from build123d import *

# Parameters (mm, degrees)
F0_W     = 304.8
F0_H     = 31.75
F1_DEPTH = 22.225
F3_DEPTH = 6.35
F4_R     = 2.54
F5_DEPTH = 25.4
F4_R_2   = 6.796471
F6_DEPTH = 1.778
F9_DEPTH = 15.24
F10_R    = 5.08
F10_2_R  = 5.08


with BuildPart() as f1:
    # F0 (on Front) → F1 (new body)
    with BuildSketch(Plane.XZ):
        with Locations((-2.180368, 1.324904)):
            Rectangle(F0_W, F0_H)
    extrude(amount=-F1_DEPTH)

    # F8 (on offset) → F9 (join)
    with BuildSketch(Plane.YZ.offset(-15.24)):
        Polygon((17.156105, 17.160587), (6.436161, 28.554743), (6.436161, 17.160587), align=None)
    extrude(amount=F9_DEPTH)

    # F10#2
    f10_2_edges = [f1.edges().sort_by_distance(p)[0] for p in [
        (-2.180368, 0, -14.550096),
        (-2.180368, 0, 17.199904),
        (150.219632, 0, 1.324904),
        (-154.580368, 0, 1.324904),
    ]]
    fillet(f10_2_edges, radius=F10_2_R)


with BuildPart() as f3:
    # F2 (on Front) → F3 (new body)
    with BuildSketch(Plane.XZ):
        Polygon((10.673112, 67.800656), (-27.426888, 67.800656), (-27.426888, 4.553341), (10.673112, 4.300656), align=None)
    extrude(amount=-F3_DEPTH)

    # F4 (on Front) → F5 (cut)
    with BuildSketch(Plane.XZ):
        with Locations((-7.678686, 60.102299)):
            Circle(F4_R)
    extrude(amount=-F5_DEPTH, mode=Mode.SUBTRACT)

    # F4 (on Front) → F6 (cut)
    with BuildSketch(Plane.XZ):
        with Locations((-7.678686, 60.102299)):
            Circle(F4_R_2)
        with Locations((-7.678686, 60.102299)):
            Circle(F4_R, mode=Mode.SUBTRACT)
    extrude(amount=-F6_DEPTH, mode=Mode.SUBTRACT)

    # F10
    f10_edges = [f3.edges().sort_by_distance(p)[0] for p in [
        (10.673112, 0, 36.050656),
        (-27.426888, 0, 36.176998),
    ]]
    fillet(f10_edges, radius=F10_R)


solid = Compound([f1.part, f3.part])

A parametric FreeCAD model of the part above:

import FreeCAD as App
import Part
import Sketcher

V = App.Vector
Q = App.Units.Quantity


def edges_at(feature, points):
    """Names of the edges that pass closest to the given points."""
    edges = feature.Shape.Edges
    near = lambda p: min(range(len(edges)), key=lambda i: edges[i].distToShape(Part.Vertex(*p))[0])
    return sorted({f"Edge{near(p) + 1}" for p in points})


def add_polygon(sketch, points):
    """Adds a closed chain of lines whose ends are joined by coincident constraints."""
    first, n = sketch.GeometryCount, len(points)
    for a, b in zip(points, points[1:] + points[:1]):
        sketch.addGeometry(Part.LineSegment(App.Vector(*a, 0), App.Vector(*b, 0)), False)
    for i in range(n):
        sketch.addConstraint(Sketcher.Constraint("Coincident", first + i, 2, first + (i + 1) % n, 1))

doc = App.newDocument("Part")
body = doc.addObject("PartDesign::Body", "Body")

# Sketch on XZ plane
sketch1 = body.newObject("Sketcher::SketchObject", "Sketch")
sketch1.AttachmentSupport = (doc.getObject("XZ_Plane"), [""])
sketch1.MapMode = "FlatFace"
add_polygon(sketch1, [(-155, 17), (-155, -15), (150, -15), (150, 17)])  # lines 0-3
sketch1.addConstraint(Sketcher.Constraint("Vertical", 0))
sketch1.addConstraint(Sketcher.Constraint("Horizontal", 1))
sketch1.addConstraint(Sketcher.Constraint("Vertical", 2))
sketch1.addConstraint(Sketcher.Constraint("Horizontal", 3))
sketch1.addConstraint(Sketcher.Constraint("DistanceX", 1, 1, 1, 2, Q("12 in")))
sketch1.addConstraint(Sketcher.Constraint("DistanceY", 0, 2, 0, 1, Q("1.25 in")))
sketch1.addConstraint(Sketcher.Constraint("DistanceX", 0, 2, -1, 1, Q("154.580368 mm")))
sketch1.addConstraint(Sketcher.Constraint("DistanceY", 0, 2, -1, 1, Q("14.550096 mm")))
pad1 = body.newObject("PartDesign::Pad", "Pad")
pad1.Profile = sketch1
pad1.Length = Q("0.875 in")
pad1.Reversed = True

# Sketch on YZ plane
sketch2 = body.newObject("Sketcher::SketchObject", "Sketch001")
sketch2.AttachmentSupport = (doc.getObject("YZ_Plane"), [""])
sketch2.MapMode = "FlatFace"
sketch2.AttachmentOffset = App.Placement(V(0, 0, -0.6 * 25.4), App.Rotation())
add_polygon(sketch2, [(17, 17), (6, 29), (6, 17)])  # lines 0-2
sketch2.addConstraint(Sketcher.Constraint("Vertical", 1))
sketch2.addConstraint(Sketcher.Constraint("Horizontal", 2))
sketch2.addConstraint(Sketcher.Constraint("DistanceX", 2, 1, 2, 2, Q("10.719944 mm")))
sketch2.addConstraint(Sketcher.Constraint("DistanceY", 1, 2, 1, 1, Q("11.394156 mm")))
sketch2.addConstraint(Sketcher.Constraint("DistanceX", -1, 1, 0, 2, Q("6.436161 mm")))
sketch2.addConstraint(Sketcher.Constraint("DistanceY", -1, 1, 0, 2, Q("28.554743 mm")))
pad2 = body.newObject("PartDesign::Pad", "Pad001")
pad2.Profile = sketch2
pad2.Length = Q("0.6 in")
doc.recompute()

fillet = body.newObject("PartDesign::Fillet", "Fillet")
fillet.Base = (pad2, edges_at(pad2, [
    (-2.18, 0, -14.55),
    (-2.18, 0, 17.2),
    (150.22, 0, 1.325),
    (-154.58, 0, 1.325),
]))
fillet.Radius = Q("0.2 in")
body2 = doc.addObject("PartDesign::Body", "Body001")

# Sketch on XZ plane
sketch3 = body2.newObject("Sketcher::SketchObject", "Sketch002")
sketch3.AttachmentSupport = (doc.getObject("XZ_Plane001"), [""])
sketch3.MapMode = "FlatFace"
add_polygon(sketch3, [(11, 68), (-27, 68), (-27, 5), (11, 4)])  # lines 0-3
sketch3.addConstraint(Sketcher.Constraint("Horizontal", 0))
sketch3.addConstraint(Sketcher.Constraint("Vertical", 1))
sketch3.addConstraint(Sketcher.Constraint("Vertical", 3))
sketch3.addConstraint(Sketcher.Constraint("DistanceX", 0, 2, 0, 1, Q("1.5 in")))
sketch3.addConstraint(Sketcher.Constraint("DistanceY", 3, 1, 3, 2, Q("2.5 in")))
sketch3.addConstraint(Sketcher.Constraint("Angle", 2, Q("-0.379989 deg")))
sketch3.addConstraint(Sketcher.Constraint("DistanceX", 0, 2, -1, 1, Q("27.426888 mm")))
sketch3.addConstraint(Sketcher.Constraint("DistanceY", -1, 1, 1, 2, Q("4.553341 mm")))
pad3 = body2.newObject("PartDesign::Pad", "Pad002")
pad3.Profile = sketch3
pad3.Length = Q("0.25 in")
pad3.Reversed = True

# Sketch on XZ plane
sketch4 = body2.newObject("Sketcher::SketchObject", "Sketch003")
sketch4.AttachmentSupport = (doc.getObject("XZ_Plane001"), [""])
sketch4.MapMode = "FlatFace"
sketch4.addGeometry(Part.Circle(V(-7.7, 60.1, 0), V(0, 0, 1), 2.5), False)
sketch4.addConstraint(Sketcher.Constraint("Diameter", 0, Q("0.2 in")))
sketch4.addConstraint(Sketcher.Constraint("DistanceY", -1, 1, 0, 3, Q("60.102299 mm")))
sketch4.addConstraint(Sketcher.Constraint("DistanceX", 0, 3, -1, 1, Q("7.678686 mm")))
pocket1 = body2.newObject("PartDesign::Pocket", "Pocket")
pocket1.Profile = sketch4
pocket1.Length = Q("1 in")

# Sketch on XZ plane
sketch5 = body2.newObject("Sketcher::SketchObject", "Sketch004")
sketch5.AttachmentSupport = (doc.getObject("XZ_Plane001"), [""])
sketch5.MapMode = "FlatFace"
sketch5.addGeometry(Part.Circle(V(-7.7, 60.1, 0), V(0, 0, 1), 6.8), False)
sketch5.addGeometry(Part.Circle(V(-7.7, 60.1, 0), V(0, 0, 1), 2.5), False)
sketch5.addConstraint(Sketcher.Constraint("Coincident", 1, 3, 0, 3))
sketch5.addConstraint(Sketcher.Constraint("Diameter", 1, Q("0.2 in")))
sketch5.addConstraint(Sketcher.Constraint("Diameter", 0, Q("13.592942 mm")))
sketch5.addConstraint(Sketcher.Constraint("DistanceY", -1, 1, 0, 3, Q("60.102299 mm")))
sketch5.addConstraint(Sketcher.Constraint("DistanceX", 0, 3, -1, 1, Q("7.678686 mm")))
pocket2 = body2.newObject("PartDesign::Pocket", "Pocket001")
pocket2.Profile = sketch5
pocket2.Length = Q("0.07 in")
doc.recompute()

fillet2 = body2.newObject("PartDesign::Fillet", "Fillet001")
fillet2.Base = (pocket2, edges_at(pocket2, [(10.673, 0, 36.051), (-27.427, 0, 36.177)]))
fillet2.Radius = Q("0.2 in")

doc.recompute()
